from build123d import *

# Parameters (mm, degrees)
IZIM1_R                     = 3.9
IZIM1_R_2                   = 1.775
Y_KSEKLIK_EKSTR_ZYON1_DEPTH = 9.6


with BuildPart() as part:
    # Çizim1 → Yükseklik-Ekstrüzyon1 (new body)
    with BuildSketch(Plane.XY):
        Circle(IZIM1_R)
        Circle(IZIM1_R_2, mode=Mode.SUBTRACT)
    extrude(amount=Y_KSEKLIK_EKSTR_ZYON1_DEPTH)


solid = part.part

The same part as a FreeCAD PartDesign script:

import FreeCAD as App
import Part
import Sketcher

V = App.Vector
Q = App.Units.Quantity

doc = App.newDocument("Part")
params = doc.addObject("Spreadsheet::Sheet", "Params")
for row, (alias, value) in enumerate([
    ("sketch1_diameter", "7.8 mm"),
    ("sketch1_diameter2", "3.55 mm"),
    ("pad1_length", "9.6 mm"),
], start=1):
    params.set(f"A{row}", alias)
    params.set(f"B{row}", "=" + value)
    params.setAlias(f"B{row}", alias)

body = doc.addObject("PartDesign::Body", "Body")

# Sketch on XY plane
sketch1 = body.newObject("Sketcher::SketchObject", "Sketch")
sketch1.AttachmentSupport = (doc.getObject("XY_Plane"), [""])
sketch1.MapMode = "FlatFace"
sketch1.addGeometry([
    Part.Circle(V(0, 0, 0), V(0, 0, 1), 3.9),
    Part.Circle(V(0, 0, 0), V(0, 0, 1), 1.8),
], False)
sketch1.addConstraint([
    Sketcher.Constraint("Coincident", 0, 3, -1, 1),
    Sketcher.Constraint("Coincident", 1, 3, -1, 1),
    Sketcher.Constraint("Diameter", 0, Q("7.8 mm")),
    Sketcher.Constraint("Diameter", 1, Q("3.55 mm")),
])
sketch1.setExpression("Constraints[2]", "Params.sketch1_diameter")
sketch1.setExpression("Constraints[3]", "Params.sketch1_diameter2")
pad1 = body.newObject("PartDesign::Pad", "Pad")
pad1.Profile = sketch1
pad1.setExpression("Length", "Params.pad1_length")

doc.recompute()
